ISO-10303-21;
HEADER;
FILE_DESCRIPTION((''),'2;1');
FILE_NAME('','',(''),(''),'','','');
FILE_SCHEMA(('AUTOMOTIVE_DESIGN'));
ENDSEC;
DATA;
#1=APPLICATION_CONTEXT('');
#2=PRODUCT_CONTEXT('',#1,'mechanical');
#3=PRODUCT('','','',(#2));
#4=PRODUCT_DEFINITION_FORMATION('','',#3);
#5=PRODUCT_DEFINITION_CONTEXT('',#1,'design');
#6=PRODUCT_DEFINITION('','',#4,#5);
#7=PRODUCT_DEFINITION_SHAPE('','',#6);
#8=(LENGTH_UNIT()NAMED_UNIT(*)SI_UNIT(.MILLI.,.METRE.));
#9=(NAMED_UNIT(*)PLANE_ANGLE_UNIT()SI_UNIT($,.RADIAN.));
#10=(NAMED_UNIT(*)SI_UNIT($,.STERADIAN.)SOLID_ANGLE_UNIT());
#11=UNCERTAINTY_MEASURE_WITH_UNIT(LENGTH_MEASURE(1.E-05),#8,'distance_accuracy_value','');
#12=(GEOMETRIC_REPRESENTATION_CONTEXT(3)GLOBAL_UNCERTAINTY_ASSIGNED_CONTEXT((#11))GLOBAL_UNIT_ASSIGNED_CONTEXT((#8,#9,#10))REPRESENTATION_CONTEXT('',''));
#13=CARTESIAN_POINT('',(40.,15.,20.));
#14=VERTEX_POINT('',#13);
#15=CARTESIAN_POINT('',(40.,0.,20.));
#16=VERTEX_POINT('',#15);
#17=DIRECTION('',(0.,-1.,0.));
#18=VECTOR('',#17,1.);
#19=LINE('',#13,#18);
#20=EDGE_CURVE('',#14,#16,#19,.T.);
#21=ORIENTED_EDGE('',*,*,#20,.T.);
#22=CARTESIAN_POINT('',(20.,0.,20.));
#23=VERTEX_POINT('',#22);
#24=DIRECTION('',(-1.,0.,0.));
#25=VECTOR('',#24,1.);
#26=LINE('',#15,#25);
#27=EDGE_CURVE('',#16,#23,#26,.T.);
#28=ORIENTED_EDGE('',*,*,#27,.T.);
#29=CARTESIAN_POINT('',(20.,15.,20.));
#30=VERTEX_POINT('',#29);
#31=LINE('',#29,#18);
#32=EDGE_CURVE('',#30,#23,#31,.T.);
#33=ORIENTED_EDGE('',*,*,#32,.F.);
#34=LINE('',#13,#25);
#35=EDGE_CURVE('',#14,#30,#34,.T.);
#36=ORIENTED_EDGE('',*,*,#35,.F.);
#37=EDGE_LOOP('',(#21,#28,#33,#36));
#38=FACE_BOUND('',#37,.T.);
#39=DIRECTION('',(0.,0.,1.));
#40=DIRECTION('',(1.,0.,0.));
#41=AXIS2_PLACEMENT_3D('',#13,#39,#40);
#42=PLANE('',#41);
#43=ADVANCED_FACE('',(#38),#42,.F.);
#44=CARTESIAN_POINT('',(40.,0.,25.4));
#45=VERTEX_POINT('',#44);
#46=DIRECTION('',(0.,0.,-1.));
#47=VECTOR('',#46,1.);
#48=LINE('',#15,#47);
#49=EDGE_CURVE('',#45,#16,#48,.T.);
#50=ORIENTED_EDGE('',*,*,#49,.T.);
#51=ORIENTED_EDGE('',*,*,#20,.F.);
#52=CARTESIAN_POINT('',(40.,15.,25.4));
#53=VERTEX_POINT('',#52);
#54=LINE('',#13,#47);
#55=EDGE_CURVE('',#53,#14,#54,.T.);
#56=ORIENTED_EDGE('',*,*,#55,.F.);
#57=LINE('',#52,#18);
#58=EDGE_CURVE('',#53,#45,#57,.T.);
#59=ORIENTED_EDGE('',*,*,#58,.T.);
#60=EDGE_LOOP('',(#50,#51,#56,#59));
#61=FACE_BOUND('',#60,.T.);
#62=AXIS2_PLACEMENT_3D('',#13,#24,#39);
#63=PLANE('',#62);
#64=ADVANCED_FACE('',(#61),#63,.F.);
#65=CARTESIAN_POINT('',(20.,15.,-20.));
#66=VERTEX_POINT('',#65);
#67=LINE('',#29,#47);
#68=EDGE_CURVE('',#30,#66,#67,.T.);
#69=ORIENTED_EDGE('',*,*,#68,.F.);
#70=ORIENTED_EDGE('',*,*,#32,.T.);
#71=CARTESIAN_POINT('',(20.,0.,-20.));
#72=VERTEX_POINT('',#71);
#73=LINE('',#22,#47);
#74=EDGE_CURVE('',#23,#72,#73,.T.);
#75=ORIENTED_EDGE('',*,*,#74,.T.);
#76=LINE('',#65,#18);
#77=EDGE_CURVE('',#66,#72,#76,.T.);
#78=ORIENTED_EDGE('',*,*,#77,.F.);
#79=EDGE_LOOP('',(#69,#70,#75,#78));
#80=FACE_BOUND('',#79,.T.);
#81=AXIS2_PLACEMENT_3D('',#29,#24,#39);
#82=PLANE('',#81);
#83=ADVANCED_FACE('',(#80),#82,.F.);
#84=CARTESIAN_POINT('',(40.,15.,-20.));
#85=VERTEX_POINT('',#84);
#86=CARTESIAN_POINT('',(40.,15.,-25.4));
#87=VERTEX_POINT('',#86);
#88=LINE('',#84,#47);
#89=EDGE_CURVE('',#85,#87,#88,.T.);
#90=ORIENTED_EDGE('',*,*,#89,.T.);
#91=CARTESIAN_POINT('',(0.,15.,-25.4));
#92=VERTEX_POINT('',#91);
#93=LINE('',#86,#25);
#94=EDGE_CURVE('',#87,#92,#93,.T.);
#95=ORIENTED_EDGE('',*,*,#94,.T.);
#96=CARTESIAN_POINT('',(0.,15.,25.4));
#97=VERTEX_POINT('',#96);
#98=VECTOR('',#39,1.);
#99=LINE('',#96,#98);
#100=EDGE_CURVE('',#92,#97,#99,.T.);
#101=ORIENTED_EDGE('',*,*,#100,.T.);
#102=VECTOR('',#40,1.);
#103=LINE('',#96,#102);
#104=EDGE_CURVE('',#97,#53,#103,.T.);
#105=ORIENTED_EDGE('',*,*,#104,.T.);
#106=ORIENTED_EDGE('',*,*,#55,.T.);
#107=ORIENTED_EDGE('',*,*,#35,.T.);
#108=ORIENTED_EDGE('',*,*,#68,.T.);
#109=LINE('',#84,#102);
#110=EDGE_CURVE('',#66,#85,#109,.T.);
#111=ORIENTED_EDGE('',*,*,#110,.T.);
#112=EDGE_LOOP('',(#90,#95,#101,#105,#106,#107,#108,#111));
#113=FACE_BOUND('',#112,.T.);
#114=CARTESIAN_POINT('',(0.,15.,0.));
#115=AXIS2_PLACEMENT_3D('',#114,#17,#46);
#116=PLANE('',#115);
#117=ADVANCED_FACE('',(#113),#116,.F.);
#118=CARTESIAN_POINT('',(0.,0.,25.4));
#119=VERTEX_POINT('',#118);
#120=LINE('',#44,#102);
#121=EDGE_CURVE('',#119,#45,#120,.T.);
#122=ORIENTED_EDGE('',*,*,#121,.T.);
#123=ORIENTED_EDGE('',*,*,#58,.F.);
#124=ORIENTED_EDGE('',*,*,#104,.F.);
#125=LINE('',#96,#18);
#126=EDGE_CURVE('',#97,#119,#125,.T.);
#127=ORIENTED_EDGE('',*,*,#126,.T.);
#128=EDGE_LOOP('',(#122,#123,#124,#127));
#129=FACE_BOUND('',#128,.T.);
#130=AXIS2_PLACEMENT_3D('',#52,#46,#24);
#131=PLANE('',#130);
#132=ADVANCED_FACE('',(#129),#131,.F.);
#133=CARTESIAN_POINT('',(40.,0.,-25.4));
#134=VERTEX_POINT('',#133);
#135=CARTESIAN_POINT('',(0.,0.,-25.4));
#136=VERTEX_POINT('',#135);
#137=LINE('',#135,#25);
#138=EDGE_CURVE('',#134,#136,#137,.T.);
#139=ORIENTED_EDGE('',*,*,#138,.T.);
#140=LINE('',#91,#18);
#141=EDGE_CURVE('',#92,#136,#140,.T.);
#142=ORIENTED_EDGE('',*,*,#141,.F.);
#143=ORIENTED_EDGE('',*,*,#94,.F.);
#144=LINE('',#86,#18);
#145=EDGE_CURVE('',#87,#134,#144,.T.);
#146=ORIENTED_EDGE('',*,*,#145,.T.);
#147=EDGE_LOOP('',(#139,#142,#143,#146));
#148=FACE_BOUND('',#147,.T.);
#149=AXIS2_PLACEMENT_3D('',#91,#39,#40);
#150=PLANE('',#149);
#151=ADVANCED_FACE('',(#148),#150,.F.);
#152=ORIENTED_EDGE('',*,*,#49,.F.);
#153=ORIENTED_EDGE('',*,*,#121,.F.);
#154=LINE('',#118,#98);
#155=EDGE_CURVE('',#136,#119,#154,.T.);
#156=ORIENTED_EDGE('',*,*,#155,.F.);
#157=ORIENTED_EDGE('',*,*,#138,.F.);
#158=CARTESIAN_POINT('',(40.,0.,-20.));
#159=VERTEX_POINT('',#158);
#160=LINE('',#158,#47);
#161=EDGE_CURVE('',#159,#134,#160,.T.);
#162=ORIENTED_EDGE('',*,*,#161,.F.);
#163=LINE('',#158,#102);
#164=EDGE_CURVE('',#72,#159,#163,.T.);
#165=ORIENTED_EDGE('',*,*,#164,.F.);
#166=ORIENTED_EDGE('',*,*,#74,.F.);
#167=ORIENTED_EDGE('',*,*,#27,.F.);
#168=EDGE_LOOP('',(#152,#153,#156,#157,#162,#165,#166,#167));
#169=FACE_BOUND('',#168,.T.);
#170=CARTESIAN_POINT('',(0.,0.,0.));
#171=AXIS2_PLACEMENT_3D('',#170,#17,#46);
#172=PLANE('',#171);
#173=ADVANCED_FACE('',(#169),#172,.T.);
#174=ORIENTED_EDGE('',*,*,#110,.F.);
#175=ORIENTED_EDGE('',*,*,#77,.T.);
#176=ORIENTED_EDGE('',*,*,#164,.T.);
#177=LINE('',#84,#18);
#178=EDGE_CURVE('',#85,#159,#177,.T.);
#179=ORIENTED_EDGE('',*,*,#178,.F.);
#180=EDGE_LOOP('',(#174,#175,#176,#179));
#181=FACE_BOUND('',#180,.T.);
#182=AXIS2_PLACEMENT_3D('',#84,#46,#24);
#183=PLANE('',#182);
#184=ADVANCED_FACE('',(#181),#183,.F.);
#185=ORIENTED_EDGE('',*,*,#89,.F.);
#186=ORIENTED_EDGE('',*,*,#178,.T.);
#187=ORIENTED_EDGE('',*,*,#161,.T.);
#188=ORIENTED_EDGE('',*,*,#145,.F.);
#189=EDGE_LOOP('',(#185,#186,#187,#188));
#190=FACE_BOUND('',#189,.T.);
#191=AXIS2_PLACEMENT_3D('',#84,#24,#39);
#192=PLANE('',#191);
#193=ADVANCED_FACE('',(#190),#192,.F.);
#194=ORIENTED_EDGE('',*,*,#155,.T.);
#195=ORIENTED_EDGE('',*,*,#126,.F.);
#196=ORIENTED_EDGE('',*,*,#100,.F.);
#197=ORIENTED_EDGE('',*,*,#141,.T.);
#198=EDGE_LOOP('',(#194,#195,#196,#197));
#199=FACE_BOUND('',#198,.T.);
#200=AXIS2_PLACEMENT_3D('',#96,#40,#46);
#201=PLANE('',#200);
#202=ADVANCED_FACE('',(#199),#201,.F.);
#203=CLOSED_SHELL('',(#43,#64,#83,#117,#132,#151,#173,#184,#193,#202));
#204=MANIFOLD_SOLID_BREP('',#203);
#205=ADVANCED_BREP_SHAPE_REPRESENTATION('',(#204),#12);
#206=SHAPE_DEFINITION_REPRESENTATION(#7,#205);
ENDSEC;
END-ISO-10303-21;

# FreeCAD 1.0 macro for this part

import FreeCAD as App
import Part
import Sketcher
from FreeCAD import Vector


def add_polygon(sketch, points):
    """Adds a closed chain of lines whose ends are joined by coincident constraints."""
    first, n = sketch.GeometryCount, len(points)
    for a, b in zip(points, points[1:] + points[:1]):
        sketch.addGeometry(Part.LineSegment(App.Vector(*a, 0), App.Vector(*b, 0)), False)
    for i in range(n):
        sketch.addConstraint(Sketcher.Constraint("Coincident", first + i, 2, first + (i + 1) % n, 1))

doc = App.newDocument("Part")
body = doc.addObject("PartDesign::Body", "Body")

# Sketch on XZ plane
sketch1 = body.newObject("Sketcher::SketchObject", "Sketch")
sketch1.AttachmentSupport = (doc.getObject("XZ_Plane"), [""])
sketch1.MapMode = "FlatFace"
add_polygon(sketch1, [(40, -20), (40, -25.4), (0, -25.4), (0, 25.4), (40, 25.4), (40, 20), (20, 20), (20, -20)])  # lines 0-7
sketch1.addConstraint([
    Sketcher.Constraint("Vertical", 0),
    Sketcher.Constraint("Horizontal", 1),
    Sketcher.Constraint("Vertical", 2),
    Sketcher.Constraint("Horizontal", 3),
    Sketcher.Constraint("Vertical", 4),
    Sketcher.Constraint("Horizontal", 5),
    Sketcher.Constraint("Vertical", 6),
    Sketcher.Constraint("Horizontal", 7),
    Sketcher.Constraint("Symmetric", 1, 2, 2, 2, -1, 1),
    Sketcher.Constraint("Symmetric", 4, 2, 7, 2, -1),
    Sketcher.Constraint("Equal", 3, 6),
    Sketcher.Constraint("DistanceX", 1, 2, 1, 1, 40.0),
    Sketcher.Constraint("DistanceX", 5, 2, 5, 1, 20.0),
    Sketcher.Constraint("DistanceY", 0, 2, 0, 1, 5.4),
])
pad1 = body.newObject("PartDesign::Pad", "Pad")
pad1.Profile = sketch1
pad1.Length = 15
pad1.Reversed = True

doc.recompute()
